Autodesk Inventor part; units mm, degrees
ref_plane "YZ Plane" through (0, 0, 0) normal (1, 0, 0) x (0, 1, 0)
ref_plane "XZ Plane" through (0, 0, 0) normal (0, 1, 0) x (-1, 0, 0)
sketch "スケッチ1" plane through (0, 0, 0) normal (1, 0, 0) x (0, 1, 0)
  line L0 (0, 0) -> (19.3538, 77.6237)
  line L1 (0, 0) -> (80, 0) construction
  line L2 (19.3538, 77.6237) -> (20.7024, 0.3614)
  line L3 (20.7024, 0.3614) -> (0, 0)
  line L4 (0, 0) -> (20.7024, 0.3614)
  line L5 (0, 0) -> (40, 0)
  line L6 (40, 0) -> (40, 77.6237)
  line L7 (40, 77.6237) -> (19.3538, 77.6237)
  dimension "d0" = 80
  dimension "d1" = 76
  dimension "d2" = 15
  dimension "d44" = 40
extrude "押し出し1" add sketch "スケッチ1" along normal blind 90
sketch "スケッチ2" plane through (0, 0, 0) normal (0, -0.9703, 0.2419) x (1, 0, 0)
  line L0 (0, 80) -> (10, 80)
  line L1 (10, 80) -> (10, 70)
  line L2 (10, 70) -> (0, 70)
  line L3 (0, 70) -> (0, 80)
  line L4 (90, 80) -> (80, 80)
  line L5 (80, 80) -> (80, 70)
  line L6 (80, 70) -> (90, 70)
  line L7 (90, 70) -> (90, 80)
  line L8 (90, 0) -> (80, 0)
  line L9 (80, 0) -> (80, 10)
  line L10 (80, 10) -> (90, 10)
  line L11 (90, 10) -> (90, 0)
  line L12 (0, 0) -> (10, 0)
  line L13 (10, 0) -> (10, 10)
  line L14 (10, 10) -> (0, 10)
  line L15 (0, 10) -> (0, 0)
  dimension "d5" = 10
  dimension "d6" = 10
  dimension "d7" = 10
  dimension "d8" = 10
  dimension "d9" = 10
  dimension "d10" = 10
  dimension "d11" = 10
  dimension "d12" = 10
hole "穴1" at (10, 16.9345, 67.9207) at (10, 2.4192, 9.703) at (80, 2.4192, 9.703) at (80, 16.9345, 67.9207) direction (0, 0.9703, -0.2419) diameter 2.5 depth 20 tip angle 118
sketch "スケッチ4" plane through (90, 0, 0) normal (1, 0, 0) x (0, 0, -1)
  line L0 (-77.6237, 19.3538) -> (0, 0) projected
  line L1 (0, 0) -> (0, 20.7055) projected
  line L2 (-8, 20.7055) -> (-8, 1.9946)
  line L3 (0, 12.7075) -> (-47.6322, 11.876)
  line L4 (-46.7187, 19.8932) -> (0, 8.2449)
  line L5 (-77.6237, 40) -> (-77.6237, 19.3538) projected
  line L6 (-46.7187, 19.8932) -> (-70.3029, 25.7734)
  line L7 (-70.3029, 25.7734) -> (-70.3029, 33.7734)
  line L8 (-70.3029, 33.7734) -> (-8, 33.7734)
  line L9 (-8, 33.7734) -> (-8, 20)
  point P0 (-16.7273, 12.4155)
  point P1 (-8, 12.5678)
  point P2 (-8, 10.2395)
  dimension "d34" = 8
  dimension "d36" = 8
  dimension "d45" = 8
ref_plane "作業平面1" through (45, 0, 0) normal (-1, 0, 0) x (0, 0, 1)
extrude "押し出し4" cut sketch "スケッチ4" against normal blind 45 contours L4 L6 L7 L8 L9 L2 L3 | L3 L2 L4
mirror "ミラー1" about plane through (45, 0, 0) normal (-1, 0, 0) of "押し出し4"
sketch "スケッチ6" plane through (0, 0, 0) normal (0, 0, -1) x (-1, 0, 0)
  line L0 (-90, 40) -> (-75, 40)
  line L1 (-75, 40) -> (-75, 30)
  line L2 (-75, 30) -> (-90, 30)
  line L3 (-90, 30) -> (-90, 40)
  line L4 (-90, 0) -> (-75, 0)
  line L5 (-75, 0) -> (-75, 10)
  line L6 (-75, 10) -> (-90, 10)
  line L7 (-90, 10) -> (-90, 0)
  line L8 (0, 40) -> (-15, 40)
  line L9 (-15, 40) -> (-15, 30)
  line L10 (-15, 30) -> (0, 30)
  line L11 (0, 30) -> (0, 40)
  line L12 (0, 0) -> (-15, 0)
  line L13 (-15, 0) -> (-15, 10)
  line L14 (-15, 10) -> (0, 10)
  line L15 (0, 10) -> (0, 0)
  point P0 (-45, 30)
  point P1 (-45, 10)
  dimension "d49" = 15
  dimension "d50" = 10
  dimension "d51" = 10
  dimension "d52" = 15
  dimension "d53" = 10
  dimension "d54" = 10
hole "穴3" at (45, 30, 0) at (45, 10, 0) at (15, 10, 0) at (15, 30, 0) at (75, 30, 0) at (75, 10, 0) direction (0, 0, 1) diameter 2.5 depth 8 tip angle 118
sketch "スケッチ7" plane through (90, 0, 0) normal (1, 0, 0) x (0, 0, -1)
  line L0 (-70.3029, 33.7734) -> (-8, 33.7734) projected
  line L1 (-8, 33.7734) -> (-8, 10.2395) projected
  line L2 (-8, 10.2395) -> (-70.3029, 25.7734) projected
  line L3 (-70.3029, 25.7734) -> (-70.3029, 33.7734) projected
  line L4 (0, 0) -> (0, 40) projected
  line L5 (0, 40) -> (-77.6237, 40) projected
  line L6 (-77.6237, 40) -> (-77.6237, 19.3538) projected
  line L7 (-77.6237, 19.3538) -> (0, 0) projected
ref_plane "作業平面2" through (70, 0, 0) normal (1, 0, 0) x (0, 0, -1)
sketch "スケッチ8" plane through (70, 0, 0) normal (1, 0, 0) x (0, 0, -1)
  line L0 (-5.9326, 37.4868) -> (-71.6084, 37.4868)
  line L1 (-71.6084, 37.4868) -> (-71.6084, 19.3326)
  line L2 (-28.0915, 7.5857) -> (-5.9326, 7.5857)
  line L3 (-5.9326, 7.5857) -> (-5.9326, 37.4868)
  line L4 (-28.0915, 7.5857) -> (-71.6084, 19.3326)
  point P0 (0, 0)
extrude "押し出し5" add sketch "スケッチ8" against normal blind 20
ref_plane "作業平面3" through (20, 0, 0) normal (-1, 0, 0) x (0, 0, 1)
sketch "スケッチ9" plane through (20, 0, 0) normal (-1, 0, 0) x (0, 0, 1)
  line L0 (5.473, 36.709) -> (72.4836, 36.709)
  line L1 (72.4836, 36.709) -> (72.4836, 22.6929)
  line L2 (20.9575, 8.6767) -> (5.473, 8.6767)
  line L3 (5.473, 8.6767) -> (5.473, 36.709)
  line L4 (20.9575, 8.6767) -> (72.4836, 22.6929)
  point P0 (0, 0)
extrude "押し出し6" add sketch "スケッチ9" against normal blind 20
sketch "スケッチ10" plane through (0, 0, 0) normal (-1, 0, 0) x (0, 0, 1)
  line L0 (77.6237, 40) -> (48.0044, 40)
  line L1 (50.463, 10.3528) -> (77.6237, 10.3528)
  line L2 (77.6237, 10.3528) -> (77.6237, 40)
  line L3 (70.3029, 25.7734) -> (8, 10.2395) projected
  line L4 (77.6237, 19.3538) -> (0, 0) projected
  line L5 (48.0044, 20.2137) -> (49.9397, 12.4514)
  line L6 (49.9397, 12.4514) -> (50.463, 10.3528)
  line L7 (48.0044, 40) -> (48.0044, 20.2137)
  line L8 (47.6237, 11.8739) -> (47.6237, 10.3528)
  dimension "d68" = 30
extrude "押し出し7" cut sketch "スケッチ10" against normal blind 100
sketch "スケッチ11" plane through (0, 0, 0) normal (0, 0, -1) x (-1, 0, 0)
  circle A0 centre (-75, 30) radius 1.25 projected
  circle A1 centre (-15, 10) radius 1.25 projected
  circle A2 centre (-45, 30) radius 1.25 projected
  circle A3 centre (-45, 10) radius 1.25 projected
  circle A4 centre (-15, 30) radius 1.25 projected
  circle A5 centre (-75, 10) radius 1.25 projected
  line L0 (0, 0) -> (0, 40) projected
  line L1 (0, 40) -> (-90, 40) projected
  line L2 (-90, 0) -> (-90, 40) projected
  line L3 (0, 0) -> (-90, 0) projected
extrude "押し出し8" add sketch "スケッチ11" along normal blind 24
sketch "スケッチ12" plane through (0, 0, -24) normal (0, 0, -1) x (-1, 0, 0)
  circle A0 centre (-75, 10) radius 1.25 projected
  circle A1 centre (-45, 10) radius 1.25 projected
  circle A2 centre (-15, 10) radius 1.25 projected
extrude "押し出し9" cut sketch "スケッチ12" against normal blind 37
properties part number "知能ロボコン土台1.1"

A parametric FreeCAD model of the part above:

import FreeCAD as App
import Part
import Sketcher
from FreeCAD import Vector
Q = App.Units.Quantity

doc = App.newDocument("Part")
params = doc.addObject("Spreadsheet::Sheet", "Params")
for row, (alias, value) in enumerate([
    ("sketch1_width", "40 mm"),
    ("sketch1_length", "80 mm"),
    ("pad1_length", "90 mm"),
    ("sketch2_diameter", "2.5 mm"),
    ("hole_diameter", "2.5 mm"),
    ("hole_depth", "20 mm"),
    ("sketch3_width", "8 mm"),
    ("pocket1_length", "45 mm"),
    ("sketch4_diameter", "2.5 mm"),
    ("hole2_diameter", "2.5 mm"),
    ("hole2_depth", "8 mm"),
    ("pad2_length", "20 mm"),
    ("pad3_length", "20 mm"),
    ("sketch7_length", "8 mm"),
    ("pocket2_length", "100 mm"),
    ("sketch8_diameter", "2.5 mm"),
    ("sketch8_width", "90 mm"),
    ("sketch8_height", "40 mm"),
    ("pad4_length", "24 mm"),
    ("sketch9_diameter", "2.5 mm"),
    ("pocket3_length", "37 mm"),
], start=1):
    params.set(f"A{row}", alias)
    params.set(f"B{row}", "=" + value)
    params.setAlias(f"B{row}", alias)

body = doc.addObject("PartDesign::Body", "Body")

# Sketch on YZ plane
sketch1 = body.newObject("Sketcher::SketchObject", "Sketch")
sketch1.AttachmentSupport = (doc.getObject("YZ_Plane"), [""])
sketch1.MapMode = "FlatFace"
sketch1.addGeometry(Part.LineSegment(Vector(19, 78, 0), Vector(0, 0, 0)), False)
sketch1.addGeometry(Part.LineSegment(Vector(0, 0, 0), Vector(40, 0, 0)), False)
sketch1.addGeometry(Part.LineSegment(Vector(40, 0, 0), Vector(40, 78, 0)), False)
sketch1.addGeometry(Part.LineSegment(Vector(40, 78, 0), Vector(19, 78, 0)), False)
sketch1.addConstraint(Sketcher.Constraint("Coincident", 0, 2, 1, 1))
sketch1.addConstraint(Sketcher.Constraint("Coincident", 1, 2, 2, 1))
sketch1.addConstraint(Sketcher.Constraint("Coincident", 2, 2, 3, 1))
sketch1.addConstraint(Sketcher.Constraint("Coincident", 3, 2, 0, 1))
sketch1.addConstraint(Sketcher.Constraint("Horizontal", 1))
sketch1.addConstraint(Sketcher.Constraint("Vertical", 2))
sketch1.addConstraint(Sketcher.Constraint("Horizontal", 3))
sketch1.addConstraint(Sketcher.Constraint("Coincident", 0, 2, -1, 1))
sketch1.addConstraint(Sketcher.Constraint("DistanceX", 1, 1, 1, 2, 40.0))
sketch1.addConstraint(Sketcher.Constraint("Distance", 0, 80.0))
sketch1.addConstraint(Sketcher.Constraint("Angle", 0, Q("-104 deg")))
sketch1.setExpression("Constraints[8]", "Params.sketch1_width")
sketch1.setExpression("Constraints[9]", "Params.sketch1_length")
pad1 = body.newObject("PartDesign::Pad", "Pad")
pad1.Profile = sketch1
pad1.setExpression("Length", "Params.pad1_length")

# Sketch on an angled plane
sketch2 = body.newObject("Sketcher::SketchObject", "Sketch001")
sketch2.Placement = App.Placement(Vector(0, -0.000031, 0.000008), App.Rotation(Vector(0, -0.241921896, -0.970295726), Vector(1, 0, 0), Vector(0, -0.970295726, 0.241921896), "ZXY"))
sketch2.addGeometry(Part.Circle(Vector(-70, 10, 0), Vector(0, 0, 1), 1.2), False)
sketch2.addGeometry(Part.Circle(Vector(-10, 10, 0), Vector(0, 0, 1), 1.2), False)
sketch2.addGeometry(Part.Circle(Vector(-10, 80, 0), Vector(0, 0, 1), 1.2), False)
sketch2.addGeometry(Part.Circle(Vector(-70, 80, 0), Vector(0, 0, 1), 1.2), False)
sketch2.addConstraint(Sketcher.Constraint("Equal", 0, 1))
sketch2.addConstraint(Sketcher.Constraint("Equal", 1, 2))
sketch2.addConstraint(Sketcher.Constraint("Equal", 2, 3))
sketch2.addConstraint(Sketcher.Constraint("Horizontal", 0, 3, 1, 3))
sketch2.addConstraint(Sketcher.Constraint("Horizontal", 2, 3, 3, 3))
sketch2.addConstraint(Sketcher.Constraint("Vertical", 1, 3, 2, 3))
sketch2.addConstraint(Sketcher.Constraint("Vertical", 0, 3, 3, 3))
sketch2.addConstraint(Sketcher.Constraint("Diameter", 0, 2.5))
sketch2.addConstraint(Sketcher.Constraint("DistanceX", 0, 3, -1, 1, 70.0))
sketch2.addConstraint(Sketcher.Constraint("DistanceY", -1, 1, 0, 3, 10.0))
sketch2.addConstraint(Sketcher.Constraint("DistanceX", 1, 3, -1, 1, 10.0))
sketch2.addConstraint(Sketcher.Constraint("DistanceY", -1, 1, 2, 3, 80.0))
sketch2.setExpression("Constraints[7]", "Params.sketch2_diameter")
doc.recompute()
hole = body.newObject("PartDesign::Hole", "Hole")
hole.Profile = sketch2
hole.ThreadType = "None"
hole.setExpression("Diameter", "Params.hole_diameter")
hole.DepthType = "Dimension"
hole.setExpression("Depth", "Params.hole_depth")
hole.DrillPoint = "Angled"
hole.DrillPointAngle = 118

# Sketch on YZ plane
sketch3 = body.newObject("Sketcher::SketchObject", "Sketch002")
sketch3.AttachmentSupport = (doc.getObject("YZ_Plane"), [""])
sketch3.MapMode = "FlatFace"
sketch3.AttachmentOffset = App.Placement(Vector(0, 0, 90), App.Rotation())
sketch3.addGeometry(Part.LineSegment(Vector(20, 47, 0), Vector(10, 8, 0)), False)
sketch3.addGeometry(Part.LineSegment(Vector(10, 8, 0), Vector(34, 8, 0)), False)
sketch3.addGeometry(Part.LineSegment(Vector(34, 8, 0), Vector(34, 70, 0)), False)
sketch3.addGeometry(Part.LineSegment(Vector(34, 70, 0), Vector(26, 70, 0)), False)
sketch3.addGeometry(Part.LineSegment(Vector(26, 70, 0), Vector(20, 47, 0)), False)
sketch3.addConstraint(Sketcher.Constraint("Coincident", 0, 2, 1, 1))
sketch3.addConstraint(Sketcher.Constraint("Coincident", 1, 2, 2, 1))
sketch3.addConstraint(Sketcher.Constraint("Coincident", 2, 2, 3, 1))
sketch3.addConstraint(Sketcher.Constraint("Coincident", 3, 2, 4, 1))
sketch3.addConstraint(Sketcher.Constraint("Coincident", 4, 2, 0, 1))
sketch3.addConstraint(Sketcher.Constraint("Horizontal", 1))
sketch3.addConstraint(Sketcher.Constraint("Vertical", 2))
sketch3.addConstraint(Sketcher.Constraint("Horizontal", 3))
sketch3.addConstraint(Sketcher.Constraint("Parallel", 0, 4))
sketch3.addConstraint(Sketcher.Constraint("DistanceX", 3, 2, 3, 1, 8.0))
sketch3.addConstraint(Sketcher.Constraint("DistanceY", -1, 1, 0, 2, 8.0))
sketch3.addConstraint(Sketcher.Constraint("Angle", 0, Q("-104 deg")))
sketch3.addConstraint(Sketcher.Constraint("DistanceY", 2, 1, 2, 2, 62.303))
sketch3.addConstraint(Sketcher.Constraint("Distance", 0, 39.904))
sketch3.addConstraint(Sketcher.Constraint("DistanceX", -1, 1, 0, 2, 10.2395))
sketch3.setExpression("Constraints[9]", "Params.sketch3_width")
pocket1 = body.newObject("PartDesign::Pocket", "Pocket")
pocket1.Profile = sketch3
pocket1.setExpression("Length", "Params.pocket1_length")
doc.recompute()

datumplane = body.newObject("PartDesign::Plane", "DatumPlane")
datumplane.AttachmentSupport = (doc.getObject("YZ_Plane"), [""])
datumplane.MapMode = "FlatFace"
datumplane.AttachmentOffset = App.Placement(Vector(0, 0, 45), App.Rotation())
mirrored = body.newObject("PartDesign::Mirrored", "Mirrored")
mirrored.Originals = [pocket1]
mirrored.MirrorPlane = (datumplane, [""])
body.Tip = mirrored

# Sketch on XY plane
sketch4 = body.newObject("Sketcher::SketchObject", "Sketch003")
sketch4.AttachmentSupport = (doc.getObject("XY_Plane"), [""])
sketch4.MapMode = "FlatFace"
sketch4.addGeometry(Part.Circle(Vector(45, 30, 0), Vector(0, 0, 1), 1.2), False)
sketch4.addGeometry(Part.Circle(Vector(45, 10, 0), Vector(0, 0, 1), 1.2), False)
sketch4.addGeometry(Part.Circle(Vector(15, 10, 0), Vector(0, 0, 1), 1.2), False)
sketch4.addGeometry(Part.Circle(Vector(15, 30, 0), Vector(0, 0, 1), 1.2), False)
sketch4.addGeometry(Part.Circle(Vector(75, 30, 0), Vector(0, 0, 1), 1.2), False)
sketch4.addGeometry(Part.Circle(Vector(75, 10, 0), Vector(0, 0, 1), 1.2), False)
sketch4.addConstraint(Sketcher.Constraint("Equal", 0, 1))
sketch4.addConstraint(Sketcher.Constraint("Equal", 1, 2))
sketch4.addConstraint(Sketcher.Constraint("Equal", 2, 3))
sketch4.addConstraint(Sketcher.Constraint("Equal", 3, 4))
sketch4.addConstraint(Sketcher.Constraint("Equal", 4, 5))
sketch4.addConstraint(Sketcher.Constraint("Horizontal", 1, 3, 2, 3))
sketch4.addConstraint(Sketcher.Constraint("Horizontal", 0, 3, 3, 3))
sketch4.addConstraint(Sketcher.Constraint("Horizontal", 3, 3, 4, 3))
sketch4.addConstraint(Sketcher.Constraint("Horizontal", 2, 3, 5, 3))
sketch4.addConstraint(Sketcher.Constraint("Vertical", 0, 3, 1, 3))
sketch4.addConstraint(Sketcher.Constraint("Vertical", 2, 3, 3, 3))
sketch4.addConstraint(Sketcher.Constraint("Vertical", 4, 3, 5, 3))
sketch4.addConstraint(Sketcher.Constraint("Diameter", 0, 2.5))
sketch4.addConstraint(Sketcher.Constraint("DistanceX", -1, 1, 0, 3, 45.0))
sketch4.addConstraint(Sketcher.Constraint("DistanceY", -1, 1, 0, 3, 30.0))
sketch4.addConstraint(Sketcher.Constraint("DistanceY", -1, 1, 1, 3, 10.0))
sketch4.addConstraint(Sketcher.Constraint("DistanceX", -1, 1, 2, 3, 15.0))
sketch4.addConstraint(Sketcher.Constraint("DistanceX", -1, 1, 4, 3, 75.0))
sketch4.setExpression("Constraints[12]", "Params.sketch4_diameter")
doc.recompute()
hole2 = body.newObject("PartDesign::Hole", "Hole001")
hole2.Profile = sketch4
hole2.ThreadType = "None"
hole2.setExpression("Diameter", "Params.hole2_diameter")
hole2.DepthType = "Dimension"
hole2.setExpression("Depth", "Params.hole2_depth")
hole2.DrillPoint = "Angled"
hole2.DrillPointAngle = 118
hole2.Reversed = True

# Sketch on YZ plane
sketch5 = body.newObject("Sketcher::SketchObject", "Sketch004")
sketch5.AttachmentSupport = (doc.getObject("YZ_Plane"), [""])
sketch5.MapMode = "FlatFace"
sketch5.AttachmentOffset = App.Placement(Vector(0, 0, 70), App.Rotation())
sketch5.addGeometry(Part.LineSegment(Vector(8, 6, 0), Vector(37, 6, 0)), False)
sketch5.addGeometry(Part.LineSegment(Vector(37, 6, 0), Vector(37, 72, 0)), False)
sketch5.addGeometry(Part.LineSegment(Vector(37, 72, 0), Vector(19, 72, 0)), False)
sketch5.addGeometry(Part.LineSegment(Vector(19, 72, 0), Vector(8, 28, 0)), False)
sketch5.addGeometry(Part.LineSegment(Vector(8, 28, 0), Vector(8, 6, 0)), False)
sketch5.addConstraint(Sketcher.Constraint("Coincident", 0, 2, 1, 1))
sketch5.addConstraint(Sketcher.Constraint("Coincident", 1, 2, 2, 1))
sketch5.addConstraint(Sketcher.Constraint("Coincident", 2, 2, 3, 1))
sketch5.addConstraint(Sketcher.Constraint("Coincident", 3, 2, 4, 1))
sketch5.addConstraint(Sketcher.Constraint("Coincident", 4, 2, 0, 1))
sketch5.addConstraint(Sketcher.Constraint("Horizontal", 0))
sketch5.addConstraint(Sketcher.Constraint("Vertical", 1))
sketch5.addConstraint(Sketcher.Constraint("Horizontal", 2))
sketch5.addConstraint(Sketcher.Constraint("Vertical", 4))
sketch5.addConstraint(Sketcher.Constraint("DistanceX", 0, 1, 0, 2, 29.901))
sketch5.addConstraint(Sketcher.Constraint("DistanceY", 4, 2, 4, 1, 22.159))
sketch5.addConstraint(Sketcher.Constraint("DistanceX", 2, 2, 2, 1, 18.1542))
sketch5.addConstraint(Sketcher.Constraint("DistanceY", 1, 1, 1, 2, 65.6758))
sketch5.addConstraint(Sketcher.Constraint("DistanceX", -1, 1, 0, 2, 37.4868))
sketch5.addConstraint(Sketcher.Constraint("DistanceY", -1, 1, 0, 2, 5.9326))
pad2 = body.newObject("PartDesign::Pad", "Pad001")
pad2.Profile = sketch5
pad2.setExpression("Length", "Params.pad2_length")
pad2.Reversed = True

# Sketch on YZ plane
sketch6 = body.newObject("Sketcher::SketchObject", "Sketch005")
sketch6.AttachmentSupport = (doc.getObject("YZ_Plane"), [""])
sketch6.MapMode = "FlatFace"
sketch6.AttachmentOffset = App.Placement(Vector(0, 0, 20), App.Rotation())
sketch6.addGeometry(Part.LineSegment(Vector(37, 72, 0), Vector(37, 5, 0)), False)
sketch6.addGeometry(Part.LineSegment(Vector(37, 5, 0), Vector(9, 5, 0)), False)
sketch6.addGeometry(Part.LineSegment(Vector(9, 5, 0), Vector(9, 21, 0)), False)
sketch6.addGeometry(Part.LineSegment(Vector(9, 21, 0), Vector(23, 72, 0)), False)
sketch6.addGeometry(Part.LineSegment(Vector(23, 72, 0), Vector(37, 72, 0)), False)
sketch6.addConstraint(Sketcher.Constraint("Coincident", 0, 2, 1, 1))
sketch6.addConstraint(Sketcher.Constraint("Coincident", 1, 2, 2, 1))
sketch6.addConstraint(Sketcher.Constraint("Coincident", 2, 2, 3, 1))
sketch6.addConstraint(Sketcher.Constraint("Coincident", 3, 2, 4, 1))
sketch6.addConstraint(Sketcher.Constraint("Coincident", 4, 2, 0, 1))
sketch6.addConstraint(Sketcher.Constraint("Vertical", 0))
sketch6.addConstraint(Sketcher.Constraint("Horizontal", 1))
sketch6.addConstraint(Sketcher.Constraint("Vertical", 2))
sketch6.addConstraint(Sketcher.Constraint("Horizontal", 4))
sketch6.addConstraint(Sketcher.Constraint("DistanceX", 4, 1, 4, 2, 14.016))
sketch6.addConstraint(Sketcher.Constraint("DistanceX", 1, 2, 1, 1, 28.0323))
sketch6.addConstraint(Sketcher.Constraint("DistanceY", 0, 2, 0, 1, 67.0106))
sketch6.addConstraint(Sketcher.Constraint("DistanceY", 2, 1, 2, 2, 15.4845))
sketch6.addConstraint(Sketcher.Constraint("DistanceX", -1, 1, 0, 2, 36.709))
sketch6.addConstraint(Sketcher.Constraint("DistanceY", -1, 1, 0, 2, 5.473))
pad3 = body.newObject("PartDesign::Pad", "Pad002")
pad3.Profile = sketch6
pad3.setExpression("Length", "Params.pad3_length")

# Sketch on YZ plane
sketch7 = body.newObject("Sketcher::SketchObject", "Sketch006")
sketch7.AttachmentSupport = (doc.getObject("YZ_Plane"), [""])
sketch7.MapMode = "FlatFace"
sketch7.addGeometry(Part.LineSegment(Vector(40, 77.6, 0), Vector(40, 48, 0)), False)
sketch7.addGeometry(Part.LineSegment(Vector(40, 48, 0), Vector(20.2, 48, 0)), False)
sketch7.addGeometry(Part.LineSegment(Vector(20.2, 48, 0), Vector(12.5, 49.9, 0)), False)
sketch7.addGeometry(Part.LineSegment(Vector(12.5, 49.9, 0), Vector(10.4, 50.5, 0)), False)
sketch7.addGeometry(Part.LineSegment(Vector(10.4, 50.5, 0), Vector(10.4, 77.6, 0)), False)
sketch7.addGeometry(Part.LineSegment(Vector(10.4, 77.6, 0), Vector(40, 77.6, 0)), False)
sketch7.addConstraint(Sketcher.Constraint("Coincident", 0, 2, 1, 1))
sketch7.addConstraint(Sketcher.Constraint("Coincident", 1, 2, 2, 1))
sketch7.addConstraint(Sketcher.Constraint("Coincident", 2, 2, 3, 1))
sketch7.addConstraint(Sketcher.Constraint("Coincident", 3, 2, 4, 1))
sketch7.addConstraint(Sketcher.Constraint("Coincident", 4, 2, 5, 1))
sketch7.addConstraint(Sketcher.Constraint("Coincident", 5, 2, 0, 1))
sketch7.addConstraint(Sketcher.Constraint("Vertical", 0))
sketch7.addConstraint(Sketcher.Constraint("Horizontal", 1))
sketch7.addConstraint(Sketcher.Constraint("Vertical", 4))
sketch7.addConstraint(Sketcher.Constraint("Horizontal", 5))
sketch7.addConstraint(Sketcher.Constraint("Parallel", 2, 3))
sketch7.addConstraint(Sketcher.Constraint("Angle", 2, Q("166.0004 deg")))
sketch7.addConstraint(Sketcher.Constraint("Distance", 2, 8.0))
sketch7.addConstraint(Sketcher.Constraint("DistanceX", -1, 1, 0, 2, 40.0))
sketch7.addConstraint(Sketcher.Constraint("DistanceX", 1, 2, 1, 1, 19.7863))
sketch7.addConstraint(Sketcher.Constraint("DistanceX", 5, 1, 5, 2, 29.6472))
sketch7.addConstraint(Sketcher.Constraint("DistanceY", 0, 2, 0, 1, 29.6193))
sketch7.addConstraint(Sketcher.Constraint("DistanceY", -1, 1, 3, 2, 50.463))
sketch7.setExpression("Constraints[12]", "Params.sketch7_length")
pocket2 = body.newObject("PartDesign::Pocket", "Pocket001")
pocket2.Profile = sketch7
pocket2.setExpression("Length", "Params.pocket2_length")
pocket2.Reversed = True

# Sketch on XY plane
sketch8 = body.newObject("Sketcher::SketchObject", "Sketch007")
sketch8.AttachmentSupport = (doc.getObject("XY_Plane"), [""])
sketch8.MapMode = "FlatFace"
sketch8.addGeometry(Part.LineSegment(Vector(90, 0, 0), Vector(0, 0, 0)), False)
sketch8.addGeometry(Part.LineSegment(Vector(0, 0, 0), Vector(0, 40, 0)), False)
sketch8.addGeometry(Part.LineSegment(Vector(0, 40, 0), Vector(90, 40, 0)), False)
sketch8.addGeometry(Part.LineSegment(Vector(90, 40, 0), Vector(90, 0, 0)), False)
sketch8.addGeometry(Part.Circle(Vector(75, 10, 0), Vector(0, 0, 1), 1.2), False)
sketch8.addGeometry(Part.Circle(Vector(45, 10, 0), Vector(0, 0, 1), 1.2), False)
sketch8.addGeometry(Part.Circle(Vector(15, 10, 0), Vector(0, 0, 1), 1.2), False)
sketch8.addGeometry(Part.Circle(Vector(75, 30, 0), Vector(0, 0, 1), 1.2), False)
sketch8.addGeometry(Part.Circle(Vector(45, 30, 0), Vector(0, 0, 1), 1.2), False)
sketch8.addGeometry(Part.Circle(Vector(15, 30, 0), Vector(0, 0, 1), 1.2), False)
sketch8.addConstraint(Sketcher.Constraint("Coincident", 0, 2, 1, 1))
sketch8.addConstraint(Sketcher.Constraint("Coincident", 1, 2, 2, 1))
sketch8.addConstraint(Sketcher.Constraint("Coincident", 2, 2, 3, 1))
sketch8.addConstraint(Sketcher.Constraint("Coincident", 3, 2, 0, 1))
sketch8.addConstraint(Sketcher.Constraint("Horizontal", 0))
sketch8.addConstraint(Sketcher.Constraint("Vertical", 1))
sketch8.addConstraint(Sketcher.Constraint("Horizontal", 2))
sketch8.addConstraint(Sketcher.Constraint("Vertical", 3))
sketch8.addConstraint(Sketcher.Constraint("Coincident", 0, 2, -1, 1))
sketch8.addConstraint(Sketcher.Constraint("Equal", 4, 5))
sketch8.addConstraint(Sketcher.Constraint("Equal", 5, 6))
sketch8.addConstraint(Sketcher.Constraint("Equal", 6, 7))
sketch8.addConstraint(Sketcher.Constraint("Equal", 7, 8))
sketch8.addConstraint(Sketcher.Constraint("Equal", 8, 9))
sketch8.addConstraint(Sketcher.Constraint("Horizontal", 4, 3, 5, 3))
sketch8.addConstraint(Sketcher.Constraint("Horizontal", 5, 3, 6, 3))
sketch8.addConstraint(Sketcher.Constraint("Horizontal", 7, 3, 8, 3))
sketch8.addConstraint(Sketcher.Constraint("Horizontal", 8, 3, 9, 3))
sketch8.addConstraint(Sketcher.Constraint("Vertical", 4, 3, 7, 3))
sketch8.addConstraint(Sketcher.Constraint("Vertical", 5, 3, 8, 3))
sketch8.addConstraint(Sketcher.Constraint("Vertical", 6, 3, 9, 3))
sketch8.addConstraint(Sketcher.Constraint("Diameter", 4, 2.5))
sketch8.addConstraint(Sketcher.Constraint("DistanceX", 0, 2, 0, 1, 90.0))
sketch8.addConstraint(Sketcher.Constraint("DistanceY", 1, 1, 1, 2, 40.0))
sketch8.addConstraint(Sketcher.Constraint("DistanceX", -1, 1, 4, 3, 75.0))
sketch8.addConstraint(Sketcher.Constraint("DistanceY", -1, 1, 4, 3, 10.0))
sketch8.addConstraint(Sketcher.Constraint("DistanceX", -1, 1, 5, 3, 45.0))
sketch8.addConstraint(Sketcher.Constraint("DistanceX", -1, 1, 6, 3, 15.0))
sketch8.addConstraint(Sketcher.Constraint("DistanceY", -1, 1, 7, 3, 30.0))
sketch8.setExpression("Constraints[21]", "Params.sketch8_diameter")
sketch8.setExpression("Constraints[22]", "Params.sketch8_width")
sketch8.setExpression("Constraints[23]", "Params.sketch8_height")
pad4 = body.newObject("PartDesign::Pad", "Pad003")
pad4.Profile = sketch8
pad4.setExpression("Length", "Params.pad4_length")
pad4.Reversed = True

# Sketch on XY plane
sketch9 = body.newObject("Sketcher::SketchObject", "Sketch008")
sketch9.AttachmentSupport = (doc.getObject("XY_Plane"), [""])
sketch9.MapMode = "FlatFace"
sketch9.AttachmentOffset = App.Placement(Vector(0, 0, -24), App.Rotation())
sketch9.addGeometry(Part.Circle(Vector(75, 10, 0), Vector(0, 0, 1), 1.2), False)
sketch9.addGeometry(Part.Circle(Vector(45, 10, 0), Vector(0, 0, 1), 1.2), False)
sketch9.addGeometry(Part.Circle(Vector(15, 10, 0), Vector(0, 0, 1), 1.2), False)
sketch9.addConstraint(Sketcher.Constraint("Equal", 0, 1))
sketch9.addConstraint(Sketcher.Constraint("Equal", 1, 2))
sketch9.addConstraint(Sketcher.Constraint("Horizontal", 0, 3, 1, 3))
sketch9.addConstraint(Sketcher.Constraint("Horizontal", 1, 3, 2, 3))
sketch9.addConstraint(Sketcher.Constraint("Diameter", 0, 2.5))
sketch9.addConstraint(Sketcher.Constraint("DistanceX", -1, 1, 0, 3, 75.0))
sketch9.addConstraint(Sketcher.Constraint("DistanceY", -1, 1, 0, 3, 10.0))
sketch9.addConstraint(Sketcher.Constraint("DistanceX", -1, 1, 1, 3, 45.0))
sketch9.addConstraint(Sketcher.Constraint("DistanceX", -1, 1, 2, 3, 15.0))
sketch9.setExpression("Constraints[4]", "Params.sketch9_diameter")
pocket3 = body.newObject("PartDesign::Pocket", "Pocket002")
pocket3.Profile = sketch9
pocket3.setExpression("Length", "Params.pocket3_length")
pocket3.Reversed = True

doc.recompute()
